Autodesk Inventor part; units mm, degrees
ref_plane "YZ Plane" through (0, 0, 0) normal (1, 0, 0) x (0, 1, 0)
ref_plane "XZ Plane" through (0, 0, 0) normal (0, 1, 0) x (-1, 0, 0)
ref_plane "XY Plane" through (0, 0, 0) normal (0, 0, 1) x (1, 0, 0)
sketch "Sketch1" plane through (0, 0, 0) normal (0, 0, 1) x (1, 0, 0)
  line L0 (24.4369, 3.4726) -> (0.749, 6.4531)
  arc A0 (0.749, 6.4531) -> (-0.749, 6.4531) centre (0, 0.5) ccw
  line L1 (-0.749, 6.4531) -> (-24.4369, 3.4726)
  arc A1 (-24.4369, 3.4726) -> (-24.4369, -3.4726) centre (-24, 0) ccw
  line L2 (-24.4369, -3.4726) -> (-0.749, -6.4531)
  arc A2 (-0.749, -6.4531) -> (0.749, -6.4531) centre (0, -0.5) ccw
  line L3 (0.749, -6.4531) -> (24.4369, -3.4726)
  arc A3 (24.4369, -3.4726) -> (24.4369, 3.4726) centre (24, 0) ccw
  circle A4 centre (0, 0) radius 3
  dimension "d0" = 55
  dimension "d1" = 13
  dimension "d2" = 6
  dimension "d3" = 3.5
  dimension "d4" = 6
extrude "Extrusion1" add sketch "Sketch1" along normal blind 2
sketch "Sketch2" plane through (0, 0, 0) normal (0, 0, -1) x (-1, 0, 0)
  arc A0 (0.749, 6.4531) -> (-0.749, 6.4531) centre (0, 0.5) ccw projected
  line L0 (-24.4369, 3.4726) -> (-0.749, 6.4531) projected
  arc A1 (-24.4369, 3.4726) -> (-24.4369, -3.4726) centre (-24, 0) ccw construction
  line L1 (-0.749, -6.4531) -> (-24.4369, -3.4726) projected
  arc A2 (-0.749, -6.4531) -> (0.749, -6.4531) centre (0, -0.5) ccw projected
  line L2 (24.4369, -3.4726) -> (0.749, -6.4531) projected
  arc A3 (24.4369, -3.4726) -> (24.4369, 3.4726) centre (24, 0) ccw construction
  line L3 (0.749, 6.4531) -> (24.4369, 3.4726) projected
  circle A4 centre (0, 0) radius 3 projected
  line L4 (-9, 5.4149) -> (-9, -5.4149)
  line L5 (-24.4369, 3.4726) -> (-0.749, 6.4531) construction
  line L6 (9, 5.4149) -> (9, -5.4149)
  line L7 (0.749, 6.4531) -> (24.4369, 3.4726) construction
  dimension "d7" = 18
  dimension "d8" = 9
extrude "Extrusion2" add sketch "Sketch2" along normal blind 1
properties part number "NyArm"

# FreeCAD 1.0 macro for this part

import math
import FreeCAD as App
import Part
import Sketcher
from FreeCAD import Vector
Q = App.Units.Quantity

doc = App.newDocument("Part")
body = doc.addObject("PartDesign::Body", "Body")

sketch1 = body.newObject("Sketcher::SketchObject", "Sketch")
sketch1.AttachmentSupport = (doc.getObject("XY_Plane"), [""])
sketch1.MapMode = "FlatFace"
sketch1.addGeometry([
    Part.ArcOfCircle(Part.Circle(Vector(24, 0, 0), Vector(0, 0, 1), 3.499976), math.radians(-82.829095), math.radians(82.829095)),
    Part.LineSegment(Vector(24.4369, 3.4726, 0), Vector(0.749, 6.4531, 0)),
    Part.ArcOfCircle(Part.Circle(Vector(0, 0.5, 0), Vector(0, 0, 1), 6.000033), math.radians(82.828909), math.radians(97.171091)),
    Part.LineSegment(Vector(-0.749, 6.4531, 0), Vector(-24.4369, 3.4726, 0)),
    Part.ArcOfCircle(Part.Circle(Vector(-24, 0, 0), Vector(0, 0, 1), 3.499976), math.radians(97.170905), math.radians(262.829095)),
    Part.LineSegment(Vector(-24.4369, -3.4726, 0), Vector(-0.749, -6.4531, 0)),
    Part.ArcOfCircle(Part.Circle(Vector(0, -0.5, 0), Vector(0, 0, 1), 6.000033), math.radians(-97.171091), math.radians(-82.828909)),
    Part.LineSegment(Vector(0.749, -6.4531, 0), Vector(24.4369, -3.4726, 0)),
    Part.Circle(Vector(0, 0, 0), Vector(0, 0, 1), 3),
], False)
sketch1.addConstraint([
    Sketcher.Constraint("Tangent", 0, 2, 1, 1),
    Sketcher.Constraint("Tangent", 1, 2, 2, 1),
    Sketcher.Constraint("Tangent", 2, 2, 3, 1),
    Sketcher.Constraint("Tangent", 3, 2, 4, 1),
    Sketcher.Constraint("Tangent", 4, 2, 5, 1),
    Sketcher.Constraint("Tangent", 5, 2, 6, 1),
    Sketcher.Constraint("Tangent", 6, 2, 7, 1),
    Sketcher.Constraint("Tangent", 7, 2, 0, 1),
    Sketcher.Constraint("Coincident", 8, 3, -1, 1),
    Sketcher.Constraint("Equal", 0, 4),
    Sketcher.Constraint("Equal", 2, 6),
    Sketcher.Constraint("Symmetric", 0, 3, 4, 3, -1, 1),
    Sketcher.Constraint("Symmetric", 2, 3, 6, 3, -1, 1),
    Sketcher.Constraint("Symmetric", 1, 2, 2, 2, -2),
    Sketcher.Constraint("Diameter", 8, Q("6 mm")),
    Sketcher.Constraint("Radius", 2, Q("6 mm")),
    Sketcher.Constraint("Radius", 0, Q("3.5 mm")),
    Sketcher.Constraint("DistanceX", -1, 1, 0, 3, Q("24 mm")),
    Sketcher.Constraint("DistanceY", 6, 3, 2, 3, Q("1 mm")),
])
pad1 = body.newObject("PartDesign::Pad", "Pad")
pad1.Profile = sketch1
pad1.Length = 2

sketch2 = body.newObject("Sketcher::SketchObject", "Sketch001")
sketch2.AttachmentSupport = (doc.getObject("XY_Plane"), [""])
sketch2.MapMode = "FlatFace"
sketch2.addGeometry([
    Part.LineSegment(Vector(-9.000004, 5.414928, 0), Vector(-0.749, 6.4531, 0)),
    Part.ArcOfCircle(Part.Circle(Vector(0, 0.5, 0), Vector(0, 0, 1), 6.000033), math.radians(82.828909), math.radians(97.171091)),
    Part.LineSegment(Vector(0.749, 6.4531, 0), Vector(9.000004, 5.414928, 0)),
    Part.LineSegment(Vector(9, 5.4149, 0), Vector(9, -5.4149, 0)),
    Part.LineSegment(Vector(9.000004, -5.414928, 0), Vector(0.749, -6.4531, 0)),
    Part.ArcOfCircle(Part.Circle(Vector(0, -0.5, 0), Vector(0, 0, 1), 6.000033), math.radians(-97.171091), math.radians(-82.828909)),
    Part.LineSegment(Vector(-0.749, -6.4531, 0), Vector(-9.000004, -5.414928, 0)),
    Part.LineSegment(Vector(-9, -5.4149, 0), Vector(-9, 5.4149, 0)),
    Part.Circle(Vector(0, 0, 0), Vector(0, 0, 1), 3),
], False)
sketch2.addConstraint([
    Sketcher.Constraint("Tangent", 0, 2, 1, 2),
    Sketcher.Constraint("Tangent", 1, 1, 2, 1),
    Sketcher.Constraint("Coincident", 2, 2, 3, 1),
    Sketcher.Constraint("Coincident", 3, 2, 4, 1),
    Sketcher.Constraint("Tangent", 4, 2, 5, 2),
    Sketcher.Constraint("Tangent", 5, 1, 6, 1),
    Sketcher.Constraint("Coincident", 6, 2, 7, 1),
    Sketcher.Constraint("Coincident", 7, 2, 0, 1),
    Sketcher.Constraint("Vertical", 3),
    Sketcher.Constraint("Vertical", 7),
    Sketcher.Constraint("Coincident", 8, 3, -1, 1),
    Sketcher.Constraint("Equal", 1, 5),
    Sketcher.Constraint("Symmetric", 1, 3, 5, 3, -1, 1),
    Sketcher.Constraint("Symmetric", 2, 2, 6, 2, -1, 1),
    Sketcher.Constraint("Symmetric", 0, 2, 1, 1, -2),
    Sketcher.Constraint("Parallel", 0, 4),
    Sketcher.Constraint("Diameter", 8, Q("6 mm")),
    Sketcher.Constraint("DistanceX", -1, 1, 2, 2, Q("9 mm")),
    Sketcher.Constraint("Radius", 1, Q("6 mm")),
    Sketcher.Constraint("DistanceY", 5, 3, 1, 3, Q("1 mm")),
    Sketcher.Constraint("Distance", 0, Q("8.316 mm")),
])
pad2 = body.newObject("PartDesign::Pad", "Pad001")
pad2.Profile = sketch2
pad2.Length = 1
pad2.Reversed = True

doc.recompute()
